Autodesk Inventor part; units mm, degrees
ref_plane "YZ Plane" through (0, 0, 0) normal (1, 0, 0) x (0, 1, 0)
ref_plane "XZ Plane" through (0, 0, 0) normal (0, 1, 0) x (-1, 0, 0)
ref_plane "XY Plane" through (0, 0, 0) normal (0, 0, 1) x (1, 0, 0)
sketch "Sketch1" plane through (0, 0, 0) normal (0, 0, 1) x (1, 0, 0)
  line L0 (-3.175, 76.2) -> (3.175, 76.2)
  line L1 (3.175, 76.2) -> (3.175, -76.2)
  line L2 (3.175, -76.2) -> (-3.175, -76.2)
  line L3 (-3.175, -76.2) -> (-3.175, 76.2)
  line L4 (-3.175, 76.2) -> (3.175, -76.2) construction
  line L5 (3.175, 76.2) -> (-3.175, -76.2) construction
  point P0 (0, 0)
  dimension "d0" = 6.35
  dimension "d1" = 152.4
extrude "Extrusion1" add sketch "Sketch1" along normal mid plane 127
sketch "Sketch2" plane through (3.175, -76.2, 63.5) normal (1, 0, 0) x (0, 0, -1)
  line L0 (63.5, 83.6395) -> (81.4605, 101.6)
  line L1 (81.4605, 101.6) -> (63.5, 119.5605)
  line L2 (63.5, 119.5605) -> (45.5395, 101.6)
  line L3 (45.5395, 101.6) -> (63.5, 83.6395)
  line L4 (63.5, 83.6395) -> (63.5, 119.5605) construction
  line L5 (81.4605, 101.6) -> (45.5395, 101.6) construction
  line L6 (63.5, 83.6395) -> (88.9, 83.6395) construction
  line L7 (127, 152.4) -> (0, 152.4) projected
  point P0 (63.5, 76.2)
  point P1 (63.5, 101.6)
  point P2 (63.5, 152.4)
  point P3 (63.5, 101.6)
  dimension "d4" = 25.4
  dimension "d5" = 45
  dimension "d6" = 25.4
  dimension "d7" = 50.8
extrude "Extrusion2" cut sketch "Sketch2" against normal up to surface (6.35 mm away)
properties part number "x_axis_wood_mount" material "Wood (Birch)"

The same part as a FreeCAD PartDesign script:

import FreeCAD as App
import Part
import Sketcher
from FreeCAD import Vector
Q = App.Units.Quantity

doc = App.newDocument("Part")
body = doc.addObject("PartDesign::Body", "Body")

sketch1 = body.newObject("Sketcher::SketchObject", "Sketch")
sketch1.AttachmentSupport = (doc.getObject("XY_Plane"), [""])
sketch1.MapMode = "FlatFace"
sketch1.addGeometry(Part.LineSegment(Vector(3.175, 76.2, 0), Vector(-3.175, 76.2, 0)), False)
sketch1.addGeometry(Part.LineSegment(Vector(-3.175, 76.2, 0), Vector(-3.175, -76.2, 0)), False)
sketch1.addGeometry(Part.LineSegment(Vector(-3.175, -76.2, 0), Vector(3.175, -76.2, 0)), False)
sketch1.addGeometry(Part.LineSegment(Vector(3.175, -76.2, 0), Vector(3.175, 76.2, 0)), False)
sketch1.addConstraint(Sketcher.Constraint("Coincident", 0, 2, 1, 1))
sketch1.addConstraint(Sketcher.Constraint("Coincident", 1, 2, 2, 1))
sketch1.addConstraint(Sketcher.Constraint("Coincident", 2, 2, 3, 1))
sketch1.addConstraint(Sketcher.Constraint("Coincident", 3, 2, 0, 1))
sketch1.addConstraint(Sketcher.Constraint("Horizontal", 0))
sketch1.addConstraint(Sketcher.Constraint("Vertical", 1))
sketch1.addConstraint(Sketcher.Constraint("Horizontal", 2))
sketch1.addConstraint(Sketcher.Constraint("Vertical", 3))
sketch1.addConstraint(Sketcher.Constraint("Symmetric", 0, 2, 2, 2, -1, 1))
sketch1.addConstraint(Sketcher.Constraint("DistanceY", 1, 2, 1, 1, Q("6 in")))
sketch1.addConstraint(Sketcher.Constraint("DistanceX", 0, 2, 0, 1, Q("0.25 in")))
pad1 = body.newObject("PartDesign::Pad", "Pad")
pad1.Profile = sketch1
pad1.Length = Q("5 in")
pad1.Midplane = True

sketch2 = body.newObject("Sketcher::SketchObject", "Sketch001")
sketch2.AttachmentSupport = (doc.getObject("YZ_Plane"), [""])
sketch2.MapMode = "FlatFace"
sketch2.AttachmentOffset = App.Placement(Vector(0, 0, 0.125 * 25.4), App.Rotation())
sketch2.addGeometry(Part.LineSegment(Vector(25.4, 17.9605, 0), Vector(7.4395, 0, 0)), False)
sketch2.addGeometry(Part.LineSegment(Vector(7.4395, 0, 0), Vector(25.4, -17.9605, 0)), False)
sketch2.addGeometry(Part.LineSegment(Vector(25.4, -17.9605, 0), Vector(43.3605, 0, 0)), False)
sketch2.addGeometry(Part.LineSegment(Vector(43.3605, 0, 0), Vector(25.4, 17.9605, 0)), False)
sketch2.addConstraint(Sketcher.Constraint("Coincident", 0, 2, 1, 1))
sketch2.addConstraint(Sketcher.Constraint("Coincident", 1, 2, 2, 1))
sketch2.addConstraint(Sketcher.Constraint("Coincident", 2, 2, 3, 1))
sketch2.addConstraint(Sketcher.Constraint("Coincident", 3, 2, 0, 1))
sketch2.addConstraint(Sketcher.Constraint("Symmetric", 1, 2, 3, 2, -1))
sketch2.addConstraint(Sketcher.Constraint("PointOnObject", 0, 2, -1))
sketch2.addConstraint(Sketcher.Constraint("PointOnObject", 2, 2, -1))
sketch2.addConstraint(Sketcher.Constraint("Perpendicular", 0, 1))
sketch2.addConstraint(Sketcher.Constraint("Perpendicular", 1, 2))
sketch2.addConstraint(Sketcher.Constraint("Distance", 0, Q("1 in")))
sketch2.addConstraint(Sketcher.Constraint("DistanceX", -1, 1, 1, 2, Q("1 in")))
pocket1 = body.newObject("PartDesign::Pocket", "Pocket")
pocket1.Profile = sketch2
pocket1.Length = Q("0.25 in")

doc.recompute()
